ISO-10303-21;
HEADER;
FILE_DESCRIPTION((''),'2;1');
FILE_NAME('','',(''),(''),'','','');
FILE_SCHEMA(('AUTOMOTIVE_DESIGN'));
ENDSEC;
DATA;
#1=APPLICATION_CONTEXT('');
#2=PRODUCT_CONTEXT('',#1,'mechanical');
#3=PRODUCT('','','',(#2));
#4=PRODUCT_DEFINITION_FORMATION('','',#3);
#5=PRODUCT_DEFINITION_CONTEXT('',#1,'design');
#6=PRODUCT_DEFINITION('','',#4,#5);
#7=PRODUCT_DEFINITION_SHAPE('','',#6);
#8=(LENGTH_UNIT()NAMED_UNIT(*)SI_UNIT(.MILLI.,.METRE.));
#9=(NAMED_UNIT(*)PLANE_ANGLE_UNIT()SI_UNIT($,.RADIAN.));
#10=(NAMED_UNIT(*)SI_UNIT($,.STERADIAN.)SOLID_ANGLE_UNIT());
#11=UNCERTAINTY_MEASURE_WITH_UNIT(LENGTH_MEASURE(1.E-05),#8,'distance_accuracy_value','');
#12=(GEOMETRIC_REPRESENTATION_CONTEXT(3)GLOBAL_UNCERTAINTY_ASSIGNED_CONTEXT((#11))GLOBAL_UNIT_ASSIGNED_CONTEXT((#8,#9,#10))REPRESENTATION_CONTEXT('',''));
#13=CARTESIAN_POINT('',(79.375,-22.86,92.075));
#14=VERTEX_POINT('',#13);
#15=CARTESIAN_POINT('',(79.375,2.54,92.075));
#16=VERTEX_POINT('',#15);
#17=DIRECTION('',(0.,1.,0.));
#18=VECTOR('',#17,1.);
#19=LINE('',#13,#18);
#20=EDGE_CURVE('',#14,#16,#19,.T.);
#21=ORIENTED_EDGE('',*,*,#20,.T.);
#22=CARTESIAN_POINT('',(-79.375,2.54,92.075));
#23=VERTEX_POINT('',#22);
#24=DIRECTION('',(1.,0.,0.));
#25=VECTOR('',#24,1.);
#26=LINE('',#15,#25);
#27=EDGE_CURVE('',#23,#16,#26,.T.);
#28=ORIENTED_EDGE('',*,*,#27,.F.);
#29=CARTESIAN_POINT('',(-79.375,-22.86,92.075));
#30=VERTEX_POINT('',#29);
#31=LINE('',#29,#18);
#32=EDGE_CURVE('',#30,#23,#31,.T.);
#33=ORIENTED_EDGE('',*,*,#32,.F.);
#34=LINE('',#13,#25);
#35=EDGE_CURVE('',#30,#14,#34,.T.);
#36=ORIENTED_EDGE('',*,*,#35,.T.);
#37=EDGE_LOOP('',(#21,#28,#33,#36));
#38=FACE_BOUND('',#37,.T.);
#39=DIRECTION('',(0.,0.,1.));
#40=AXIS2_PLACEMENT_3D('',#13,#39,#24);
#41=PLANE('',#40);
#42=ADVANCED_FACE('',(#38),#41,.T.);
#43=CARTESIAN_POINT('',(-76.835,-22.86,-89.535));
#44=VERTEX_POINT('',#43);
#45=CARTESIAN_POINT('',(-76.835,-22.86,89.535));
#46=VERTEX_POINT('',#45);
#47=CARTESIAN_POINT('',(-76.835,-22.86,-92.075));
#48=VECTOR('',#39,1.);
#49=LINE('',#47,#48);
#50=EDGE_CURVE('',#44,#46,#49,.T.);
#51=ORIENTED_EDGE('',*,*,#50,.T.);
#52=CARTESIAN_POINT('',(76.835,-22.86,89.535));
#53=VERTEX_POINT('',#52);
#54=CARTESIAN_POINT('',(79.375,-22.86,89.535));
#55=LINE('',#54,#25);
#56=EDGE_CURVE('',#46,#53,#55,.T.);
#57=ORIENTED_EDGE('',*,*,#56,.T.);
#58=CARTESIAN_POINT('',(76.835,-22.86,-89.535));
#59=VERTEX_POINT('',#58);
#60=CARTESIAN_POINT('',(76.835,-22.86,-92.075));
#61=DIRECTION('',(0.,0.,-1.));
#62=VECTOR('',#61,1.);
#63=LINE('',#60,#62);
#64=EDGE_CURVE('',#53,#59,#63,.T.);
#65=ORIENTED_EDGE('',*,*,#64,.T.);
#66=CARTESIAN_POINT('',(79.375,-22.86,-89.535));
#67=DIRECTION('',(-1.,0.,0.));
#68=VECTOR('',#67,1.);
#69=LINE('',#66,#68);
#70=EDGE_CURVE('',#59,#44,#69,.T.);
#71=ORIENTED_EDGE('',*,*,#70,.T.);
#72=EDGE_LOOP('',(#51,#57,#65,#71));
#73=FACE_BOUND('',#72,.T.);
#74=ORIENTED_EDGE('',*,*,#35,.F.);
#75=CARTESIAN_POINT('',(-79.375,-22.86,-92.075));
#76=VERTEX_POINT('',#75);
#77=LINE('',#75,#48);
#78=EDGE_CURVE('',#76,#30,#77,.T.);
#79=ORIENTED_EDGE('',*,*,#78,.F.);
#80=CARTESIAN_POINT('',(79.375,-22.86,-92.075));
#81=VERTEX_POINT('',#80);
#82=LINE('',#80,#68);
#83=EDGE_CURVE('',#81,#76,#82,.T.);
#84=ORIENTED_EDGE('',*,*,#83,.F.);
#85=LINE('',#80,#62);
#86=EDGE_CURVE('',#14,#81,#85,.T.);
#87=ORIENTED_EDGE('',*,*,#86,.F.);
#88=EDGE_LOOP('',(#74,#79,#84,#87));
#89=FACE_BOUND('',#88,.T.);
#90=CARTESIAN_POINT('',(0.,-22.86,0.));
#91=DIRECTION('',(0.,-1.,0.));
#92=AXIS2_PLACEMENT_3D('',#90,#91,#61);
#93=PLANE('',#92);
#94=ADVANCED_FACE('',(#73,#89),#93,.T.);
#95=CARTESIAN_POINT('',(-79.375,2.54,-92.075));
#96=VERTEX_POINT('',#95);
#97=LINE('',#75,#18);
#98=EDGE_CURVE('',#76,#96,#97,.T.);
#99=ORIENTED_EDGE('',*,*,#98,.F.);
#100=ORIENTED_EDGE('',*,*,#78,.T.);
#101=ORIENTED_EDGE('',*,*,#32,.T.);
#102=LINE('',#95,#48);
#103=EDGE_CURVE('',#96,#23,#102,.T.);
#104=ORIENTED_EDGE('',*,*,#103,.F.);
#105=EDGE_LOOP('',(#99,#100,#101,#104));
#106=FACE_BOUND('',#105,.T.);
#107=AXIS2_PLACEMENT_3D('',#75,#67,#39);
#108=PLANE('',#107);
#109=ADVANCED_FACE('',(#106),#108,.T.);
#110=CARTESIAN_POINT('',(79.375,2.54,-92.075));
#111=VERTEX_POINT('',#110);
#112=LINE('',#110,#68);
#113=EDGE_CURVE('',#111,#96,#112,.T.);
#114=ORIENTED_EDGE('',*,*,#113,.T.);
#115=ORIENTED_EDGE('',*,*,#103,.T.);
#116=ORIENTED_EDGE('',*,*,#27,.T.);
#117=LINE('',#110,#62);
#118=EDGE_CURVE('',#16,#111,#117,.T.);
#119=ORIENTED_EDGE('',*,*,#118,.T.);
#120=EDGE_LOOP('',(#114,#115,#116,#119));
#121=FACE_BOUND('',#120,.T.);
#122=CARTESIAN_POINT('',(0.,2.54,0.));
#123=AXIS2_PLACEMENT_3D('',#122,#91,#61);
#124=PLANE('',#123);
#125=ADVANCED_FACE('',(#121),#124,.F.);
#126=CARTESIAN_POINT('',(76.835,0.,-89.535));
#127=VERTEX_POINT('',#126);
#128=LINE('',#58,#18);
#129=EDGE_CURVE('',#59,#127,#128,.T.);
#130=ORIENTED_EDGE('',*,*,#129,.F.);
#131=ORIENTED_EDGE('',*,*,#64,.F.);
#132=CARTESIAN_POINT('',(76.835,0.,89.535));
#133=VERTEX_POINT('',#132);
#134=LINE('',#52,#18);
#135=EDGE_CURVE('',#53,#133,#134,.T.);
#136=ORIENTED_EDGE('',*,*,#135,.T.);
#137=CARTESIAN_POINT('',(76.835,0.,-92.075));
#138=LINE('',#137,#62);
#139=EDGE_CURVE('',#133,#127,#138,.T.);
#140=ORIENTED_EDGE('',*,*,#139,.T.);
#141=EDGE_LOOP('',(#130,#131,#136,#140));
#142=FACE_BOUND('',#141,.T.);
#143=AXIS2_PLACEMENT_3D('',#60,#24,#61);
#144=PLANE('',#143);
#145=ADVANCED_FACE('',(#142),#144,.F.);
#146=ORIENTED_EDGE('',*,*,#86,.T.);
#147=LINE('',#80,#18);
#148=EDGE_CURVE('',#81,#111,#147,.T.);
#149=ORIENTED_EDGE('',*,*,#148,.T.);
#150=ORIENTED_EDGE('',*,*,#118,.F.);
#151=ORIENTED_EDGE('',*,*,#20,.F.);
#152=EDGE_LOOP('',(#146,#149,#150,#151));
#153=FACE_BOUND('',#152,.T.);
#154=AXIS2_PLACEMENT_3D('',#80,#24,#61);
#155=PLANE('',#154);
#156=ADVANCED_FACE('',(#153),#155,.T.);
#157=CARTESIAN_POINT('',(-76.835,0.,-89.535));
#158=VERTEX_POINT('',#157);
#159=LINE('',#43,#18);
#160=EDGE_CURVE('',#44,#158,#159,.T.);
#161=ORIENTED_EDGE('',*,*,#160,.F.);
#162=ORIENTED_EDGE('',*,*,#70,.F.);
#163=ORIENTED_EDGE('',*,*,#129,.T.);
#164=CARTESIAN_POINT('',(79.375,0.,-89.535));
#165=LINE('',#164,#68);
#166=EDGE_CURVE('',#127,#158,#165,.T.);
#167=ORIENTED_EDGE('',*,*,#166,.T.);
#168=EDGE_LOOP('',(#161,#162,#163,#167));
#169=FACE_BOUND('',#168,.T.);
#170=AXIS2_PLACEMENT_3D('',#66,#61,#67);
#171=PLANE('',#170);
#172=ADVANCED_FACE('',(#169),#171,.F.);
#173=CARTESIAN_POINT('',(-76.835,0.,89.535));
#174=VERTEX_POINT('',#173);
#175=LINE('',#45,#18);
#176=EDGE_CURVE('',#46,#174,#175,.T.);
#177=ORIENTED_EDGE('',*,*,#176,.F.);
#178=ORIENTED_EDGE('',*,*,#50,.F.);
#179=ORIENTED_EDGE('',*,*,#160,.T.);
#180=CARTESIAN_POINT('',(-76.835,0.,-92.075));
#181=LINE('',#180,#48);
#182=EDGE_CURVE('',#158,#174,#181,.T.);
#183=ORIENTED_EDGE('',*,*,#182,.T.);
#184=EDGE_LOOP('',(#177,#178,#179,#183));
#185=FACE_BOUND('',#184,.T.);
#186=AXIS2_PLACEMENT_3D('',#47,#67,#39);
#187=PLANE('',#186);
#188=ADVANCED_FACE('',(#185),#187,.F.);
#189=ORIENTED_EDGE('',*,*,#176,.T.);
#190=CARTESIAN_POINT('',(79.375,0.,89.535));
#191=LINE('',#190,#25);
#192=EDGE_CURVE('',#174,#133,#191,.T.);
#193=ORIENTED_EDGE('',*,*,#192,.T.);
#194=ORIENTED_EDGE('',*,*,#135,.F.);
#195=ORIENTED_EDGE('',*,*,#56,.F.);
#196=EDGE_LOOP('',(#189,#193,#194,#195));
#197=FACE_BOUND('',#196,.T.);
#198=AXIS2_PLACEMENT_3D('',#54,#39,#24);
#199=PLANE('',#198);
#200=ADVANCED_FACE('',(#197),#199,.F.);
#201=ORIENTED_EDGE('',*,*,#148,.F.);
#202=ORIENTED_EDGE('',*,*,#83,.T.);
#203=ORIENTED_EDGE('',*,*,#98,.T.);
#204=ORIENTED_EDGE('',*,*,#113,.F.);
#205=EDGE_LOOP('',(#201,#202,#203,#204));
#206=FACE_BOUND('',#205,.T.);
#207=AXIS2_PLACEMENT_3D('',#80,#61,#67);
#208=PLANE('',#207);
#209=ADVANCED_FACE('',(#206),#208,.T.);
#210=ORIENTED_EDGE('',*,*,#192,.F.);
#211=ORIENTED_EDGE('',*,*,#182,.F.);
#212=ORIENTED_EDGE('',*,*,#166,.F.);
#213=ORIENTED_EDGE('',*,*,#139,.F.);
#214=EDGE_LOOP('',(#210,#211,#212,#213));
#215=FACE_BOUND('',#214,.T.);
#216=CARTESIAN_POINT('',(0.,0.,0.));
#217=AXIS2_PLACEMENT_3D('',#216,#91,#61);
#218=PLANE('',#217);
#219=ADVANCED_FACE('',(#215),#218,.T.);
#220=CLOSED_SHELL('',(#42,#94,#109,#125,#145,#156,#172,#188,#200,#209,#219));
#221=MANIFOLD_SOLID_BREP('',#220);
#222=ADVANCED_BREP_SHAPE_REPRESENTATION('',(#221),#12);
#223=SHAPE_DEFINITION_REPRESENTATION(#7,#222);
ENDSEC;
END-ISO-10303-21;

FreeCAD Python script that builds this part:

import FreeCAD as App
import Part
import Sketcher

V = App.Vector
Q = App.Units.Quantity


def faces_at(feature, points):
    """Names of the faces that lie closest to the given points."""
    faces = feature.Shape.Faces
    near = lambda p: min(range(len(faces)), key=lambda i: faces[i].distToShape(Part.Vertex(*p))[0])
    return sorted({f"Face{near(p) + 1}" for p in points})


def add_polygon(sketch, points):
    """Adds a closed chain of lines whose ends are joined by coincident constraints."""
    first, n = sketch.GeometryCount, len(points)
    for a, b in zip(points, points[1:] + points[:1]):
        sketch.addGeometry(Part.LineSegment(App.Vector(*a, 0), App.Vector(*b, 0)), False)
    for i in range(n):
        sketch.addConstraint(Sketcher.Constraint("Coincident", first + i, 2, first + (i + 1) % n, 1))

doc = App.newDocument("Part")
body = doc.addObject("PartDesign::Body", "Body")

sketch1 = body.newObject("Sketcher::SketchObject", "Sketch")
sketch1.AttachmentSupport = (doc.getObject("XZ_Plane"), [""])
sketch1.MapMode = "FlatFace"
sketch1.AttachmentOffset = App.Placement(V(0, 0, -0.1 * 25.4), App.Rotation())
add_polygon(sketch1, [(-79, -92), (-79, 92), (79, 92), (79, -92)])
sketch1.addConstraint([
    Sketcher.Constraint("Vertical", 0),
    Sketcher.Constraint("Horizontal", 1),
    Sketcher.Constraint("Vertical", 2),
    Sketcher.Constraint("Horizontal", 3),
    Sketcher.Constraint("Symmetric", 0, 2, 2, 2, -1, 1),
    Sketcher.Constraint("DistanceX", 1, 1, 1, 2, Q("6.25 in")),
    Sketcher.Constraint("DistanceY", 0, 1, 0, 2, Q("7.25 in")),
])
pad1 = body.newObject("PartDesign::Pad", "Pad")
pad1.Profile = sketch1
pad1.Length = Q("1 in")
doc.recompute()

thickness = body.newObject("PartDesign::Thickness", "Thickness")
thickness.Base = (pad1, faces_at(pad1, [(0, -22.86, 0)]))
thickness.Value = Q("0.1 in")
thickness.Reversed = True
thickness.Join = "Intersection"

doc.recompute()
